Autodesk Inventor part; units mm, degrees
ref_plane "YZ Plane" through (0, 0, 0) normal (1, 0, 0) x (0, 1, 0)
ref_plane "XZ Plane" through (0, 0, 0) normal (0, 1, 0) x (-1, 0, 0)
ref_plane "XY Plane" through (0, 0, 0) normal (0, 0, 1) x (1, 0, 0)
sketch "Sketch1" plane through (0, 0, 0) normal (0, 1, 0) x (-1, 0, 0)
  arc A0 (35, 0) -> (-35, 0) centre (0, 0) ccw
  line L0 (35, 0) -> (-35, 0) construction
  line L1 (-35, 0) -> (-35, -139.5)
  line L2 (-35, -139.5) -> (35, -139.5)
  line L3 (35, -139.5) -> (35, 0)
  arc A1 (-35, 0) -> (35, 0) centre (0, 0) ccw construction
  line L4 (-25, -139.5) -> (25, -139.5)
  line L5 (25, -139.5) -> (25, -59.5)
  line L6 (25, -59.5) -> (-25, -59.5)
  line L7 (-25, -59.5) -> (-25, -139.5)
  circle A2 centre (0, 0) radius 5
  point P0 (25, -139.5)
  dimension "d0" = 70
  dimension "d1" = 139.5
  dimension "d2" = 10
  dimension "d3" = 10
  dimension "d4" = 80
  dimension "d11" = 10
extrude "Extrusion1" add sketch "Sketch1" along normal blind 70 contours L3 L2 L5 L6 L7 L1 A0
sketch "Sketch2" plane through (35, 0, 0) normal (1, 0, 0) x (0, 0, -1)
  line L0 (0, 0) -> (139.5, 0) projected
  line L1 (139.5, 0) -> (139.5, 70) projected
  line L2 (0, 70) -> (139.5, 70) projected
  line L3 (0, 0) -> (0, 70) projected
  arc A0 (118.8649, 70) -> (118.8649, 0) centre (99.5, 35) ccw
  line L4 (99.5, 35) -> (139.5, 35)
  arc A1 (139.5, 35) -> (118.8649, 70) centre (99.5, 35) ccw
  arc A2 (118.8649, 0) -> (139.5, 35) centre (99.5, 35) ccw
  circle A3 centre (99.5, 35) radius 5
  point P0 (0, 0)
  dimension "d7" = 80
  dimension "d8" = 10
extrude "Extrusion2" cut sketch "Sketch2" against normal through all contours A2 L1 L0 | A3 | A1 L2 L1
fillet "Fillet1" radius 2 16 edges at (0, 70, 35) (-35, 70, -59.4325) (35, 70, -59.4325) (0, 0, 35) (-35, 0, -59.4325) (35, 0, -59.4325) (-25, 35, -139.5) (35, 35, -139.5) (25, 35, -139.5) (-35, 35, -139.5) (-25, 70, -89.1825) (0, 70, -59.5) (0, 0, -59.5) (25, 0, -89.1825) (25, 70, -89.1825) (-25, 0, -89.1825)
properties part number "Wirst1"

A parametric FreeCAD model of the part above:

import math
import FreeCAD as App
import Part
import Sketcher
Q = App.Units.Quantity


def edges_at(feature, points):
    """Names of the edges that pass closest to the given points."""
    edges = feature.Shape.Edges
    near = lambda p: min(range(len(edges)), key=lambda i: edges[i].distToShape(Part.Vertex(*p))[0])
    return sorted({f"Edge{near(p) + 1}" for p in points})

doc = App.newDocument("Part")
body = doc.addObject("PartDesign::Body", "Body")

# Sketch on XZ plane
sketch1 = doc.addObject("Sketcher::SketchObject", "Sketch")
body.addObject(sketch1)
sketch1.AttachmentSupport = (doc.XZ_Plane, [""])
sketch1.MapMode = "FlatFace"
sketch1.addGeometry([
    Part.LineSegment(App.Vector(-35, -140, 0), App.Vector(-35, 0, 0)),  # 0
    Part.ArcOfCircle(Part.Circle(App.Vector(0, 0, 0), App.Vector(0, 0, 1), 35), math.radians(0), math.radians(180)),  # 1
    Part.LineSegment(App.Vector(35, 0, 0), App.Vector(35, -140, 0)),  # 2
    Part.LineSegment(App.Vector(35, -140, 0), App.Vector(25, -140, 0)),  # 3
    Part.LineSegment(App.Vector(25, -140, 0), App.Vector(25, -60, 0)),  # 4
    Part.LineSegment(App.Vector(25, -60, 0), App.Vector(-25, -60, 0)),  # 5
    Part.LineSegment(App.Vector(-25, -60, 0), App.Vector(-25, -140, 0)),  # 6
    Part.LineSegment(App.Vector(-25, -140, 0), App.Vector(-35, -140, 0)),  # 7
    Part.Circle(App.Vector(0, 0, 0), App.Vector(0, 0, 1), 5),  # 8
], False)
sketch1.addConstraint([
    Sketcher.Constraint("Tangent", 0, 2, 1, 2),
    Sketcher.Constraint("Tangent", 1, 1, 2, 1),
    Sketcher.Constraint("Coincident", 2, 2, 3, 1),
    Sketcher.Constraint("Coincident", 3, 2, 4, 1),
    Sketcher.Constraint("Coincident", 4, 2, 5, 1),
    Sketcher.Constraint("Coincident", 5, 2, 6, 1),
    Sketcher.Constraint("Coincident", 6, 2, 7, 1),
    Sketcher.Constraint("Coincident", 7, 2, 0, 1),
    Sketcher.Constraint("Vertical", 0),
    Sketcher.Constraint("Vertical", 2),
    Sketcher.Constraint("Horizontal", 3),
    Sketcher.Constraint("Vertical", 4),
    Sketcher.Constraint("Horizontal", 5),
    Sketcher.Constraint("Vertical", 6),
    Sketcher.Constraint("Horizontal", 7),
    Sketcher.Constraint("Coincident", 1, 3, -1, 1),
    Sketcher.Constraint("Coincident", 8, 3, -1, 1),
    Sketcher.Constraint("Symmetric", 3, 2, 6, 2, -2),
    Sketcher.Constraint("Diameter", 8, Q("10 mm")),
    Sketcher.Constraint("Radius", 1, Q("35 mm")),
    Sketcher.Constraint("DistanceX", 3, 2, 3, 1, Q("10 mm")),
    Sketcher.Constraint("DistanceY", 4, 1, 4, 2, Q("80 mm")),
    Sketcher.Constraint("DistanceY", 0, 1, 0, 2, Q("139.5 mm")),
])
pad1 = doc.addObject("PartDesign::Pad", "Pad")
body.addObject(pad1)
pad1.Profile = sketch1
pad1.Length = 70
pad1.Reversed = True

# Sketch on YZ plane
sketch2 = doc.addObject("Sketcher::SketchObject", "Sketch001")
body.addObject(sketch2)
sketch2.AttachmentSupport = (doc.YZ_Plane, [""])
sketch2.MapMode = "FlatFace"
sketch2.AttachmentOffset = App.Placement(App.Vector(0, 0, 35), App.Rotation())
sketch2.addGeometry([
    Part.ArcOfCircle(Part.Circle(App.Vector(35, -100, 0), App.Vector(0, 0, 1), 40), math.radians(-151), math.radians(-90)),  # 0
    Part.LineSegment(App.Vector(0, -119, 0), App.Vector(0, -140, 0)),  # 1
    Part.LineSegment(App.Vector(0, -140, 0), App.Vector(35, -140, 0)),  # 2
    Part.Circle(App.Vector(35, -100, 0), App.Vector(0, 0, 1), 5),  # 3
    Part.ArcOfCircle(Part.Circle(App.Vector(35, -100, 0), App.Vector(0, 0, 1), 40), math.radians(-90), math.radians(-29)),  # 4
    Part.LineSegment(App.Vector(35, -140, 0), App.Vector(70, -140, 0)),  # 5
    Part.LineSegment(App.Vector(70, -140, 0), App.Vector(70, -119, 0)),  # 6
], False)
sketch2.addConstraint([
    Sketcher.Constraint("Coincident", 0, 1, 1, 1),
    Sketcher.Constraint("Coincident", 1, 2, 2, 1),
    Sketcher.Constraint("Tangent", 2, 2, 0, 2),
    Sketcher.Constraint("Tangent", 4, 1, 5, 1),
    Sketcher.Constraint("Coincident", 5, 2, 6, 1),
    Sketcher.Constraint("Coincident", 6, 2, 4, 2),
    Sketcher.Constraint("Vertical", 1),
    Sketcher.Constraint("Horizontal", 2),
    Sketcher.Constraint("Horizontal", 5),
    Sketcher.Constraint("Vertical", 6),
    Sketcher.Constraint("Coincident", 3, 3, 0, 3),
    Sketcher.Constraint("Coincident", 4, 3, 0, 3),
    Sketcher.Constraint("Equal", 0, 4),
    Sketcher.Constraint("PointOnObject", 0, 1, -2),
    Sketcher.Constraint("Horizontal", 0, 1, 6, 2),
    Sketcher.Constraint("Diameter", 3, Q("10 mm")),
    Sketcher.Constraint("Radius", 0, Q("40 mm")),
    Sketcher.Constraint("DistanceX", 2, 1, 2, 2, Q("35 mm")),
    Sketcher.Constraint("DistanceY", 0, 3, -1, 1, Q("99.5 mm")),
])
pocket1 = doc.addObject("PartDesign::Pocket", "Pocket")
body.addObject(pocket1)
pocket1.Profile = sketch2
pocket1.Type = "ThroughAll"
doc.recompute()

fillet = doc.addObject("PartDesign::Fillet", "Fillet")
body.addObject(fillet)
fillet.Base = (pocket1, edges_at(pocket1, [
    (0, 70, 35),
    (-35, 70, -59.432),
    (35, 70, -59.432),
    (0, 0, 35),
    (-35, 0, -59.432),
    (35, 0, -59.432),
    (-25, 35, -139.5),
    (35, 35, -139.5),
    (25, 35, -139.5),
    (-35, 35, -139.5),
    (-25, 70, -89.183),
    (0, 70, -59.5),
    (0, 0, -59.5),
    (25, 0, -89.183),
    (25, 70, -89.183),
    (-25, 0, -89.183),
]))
fillet.Radius = 2

doc.recompute()
